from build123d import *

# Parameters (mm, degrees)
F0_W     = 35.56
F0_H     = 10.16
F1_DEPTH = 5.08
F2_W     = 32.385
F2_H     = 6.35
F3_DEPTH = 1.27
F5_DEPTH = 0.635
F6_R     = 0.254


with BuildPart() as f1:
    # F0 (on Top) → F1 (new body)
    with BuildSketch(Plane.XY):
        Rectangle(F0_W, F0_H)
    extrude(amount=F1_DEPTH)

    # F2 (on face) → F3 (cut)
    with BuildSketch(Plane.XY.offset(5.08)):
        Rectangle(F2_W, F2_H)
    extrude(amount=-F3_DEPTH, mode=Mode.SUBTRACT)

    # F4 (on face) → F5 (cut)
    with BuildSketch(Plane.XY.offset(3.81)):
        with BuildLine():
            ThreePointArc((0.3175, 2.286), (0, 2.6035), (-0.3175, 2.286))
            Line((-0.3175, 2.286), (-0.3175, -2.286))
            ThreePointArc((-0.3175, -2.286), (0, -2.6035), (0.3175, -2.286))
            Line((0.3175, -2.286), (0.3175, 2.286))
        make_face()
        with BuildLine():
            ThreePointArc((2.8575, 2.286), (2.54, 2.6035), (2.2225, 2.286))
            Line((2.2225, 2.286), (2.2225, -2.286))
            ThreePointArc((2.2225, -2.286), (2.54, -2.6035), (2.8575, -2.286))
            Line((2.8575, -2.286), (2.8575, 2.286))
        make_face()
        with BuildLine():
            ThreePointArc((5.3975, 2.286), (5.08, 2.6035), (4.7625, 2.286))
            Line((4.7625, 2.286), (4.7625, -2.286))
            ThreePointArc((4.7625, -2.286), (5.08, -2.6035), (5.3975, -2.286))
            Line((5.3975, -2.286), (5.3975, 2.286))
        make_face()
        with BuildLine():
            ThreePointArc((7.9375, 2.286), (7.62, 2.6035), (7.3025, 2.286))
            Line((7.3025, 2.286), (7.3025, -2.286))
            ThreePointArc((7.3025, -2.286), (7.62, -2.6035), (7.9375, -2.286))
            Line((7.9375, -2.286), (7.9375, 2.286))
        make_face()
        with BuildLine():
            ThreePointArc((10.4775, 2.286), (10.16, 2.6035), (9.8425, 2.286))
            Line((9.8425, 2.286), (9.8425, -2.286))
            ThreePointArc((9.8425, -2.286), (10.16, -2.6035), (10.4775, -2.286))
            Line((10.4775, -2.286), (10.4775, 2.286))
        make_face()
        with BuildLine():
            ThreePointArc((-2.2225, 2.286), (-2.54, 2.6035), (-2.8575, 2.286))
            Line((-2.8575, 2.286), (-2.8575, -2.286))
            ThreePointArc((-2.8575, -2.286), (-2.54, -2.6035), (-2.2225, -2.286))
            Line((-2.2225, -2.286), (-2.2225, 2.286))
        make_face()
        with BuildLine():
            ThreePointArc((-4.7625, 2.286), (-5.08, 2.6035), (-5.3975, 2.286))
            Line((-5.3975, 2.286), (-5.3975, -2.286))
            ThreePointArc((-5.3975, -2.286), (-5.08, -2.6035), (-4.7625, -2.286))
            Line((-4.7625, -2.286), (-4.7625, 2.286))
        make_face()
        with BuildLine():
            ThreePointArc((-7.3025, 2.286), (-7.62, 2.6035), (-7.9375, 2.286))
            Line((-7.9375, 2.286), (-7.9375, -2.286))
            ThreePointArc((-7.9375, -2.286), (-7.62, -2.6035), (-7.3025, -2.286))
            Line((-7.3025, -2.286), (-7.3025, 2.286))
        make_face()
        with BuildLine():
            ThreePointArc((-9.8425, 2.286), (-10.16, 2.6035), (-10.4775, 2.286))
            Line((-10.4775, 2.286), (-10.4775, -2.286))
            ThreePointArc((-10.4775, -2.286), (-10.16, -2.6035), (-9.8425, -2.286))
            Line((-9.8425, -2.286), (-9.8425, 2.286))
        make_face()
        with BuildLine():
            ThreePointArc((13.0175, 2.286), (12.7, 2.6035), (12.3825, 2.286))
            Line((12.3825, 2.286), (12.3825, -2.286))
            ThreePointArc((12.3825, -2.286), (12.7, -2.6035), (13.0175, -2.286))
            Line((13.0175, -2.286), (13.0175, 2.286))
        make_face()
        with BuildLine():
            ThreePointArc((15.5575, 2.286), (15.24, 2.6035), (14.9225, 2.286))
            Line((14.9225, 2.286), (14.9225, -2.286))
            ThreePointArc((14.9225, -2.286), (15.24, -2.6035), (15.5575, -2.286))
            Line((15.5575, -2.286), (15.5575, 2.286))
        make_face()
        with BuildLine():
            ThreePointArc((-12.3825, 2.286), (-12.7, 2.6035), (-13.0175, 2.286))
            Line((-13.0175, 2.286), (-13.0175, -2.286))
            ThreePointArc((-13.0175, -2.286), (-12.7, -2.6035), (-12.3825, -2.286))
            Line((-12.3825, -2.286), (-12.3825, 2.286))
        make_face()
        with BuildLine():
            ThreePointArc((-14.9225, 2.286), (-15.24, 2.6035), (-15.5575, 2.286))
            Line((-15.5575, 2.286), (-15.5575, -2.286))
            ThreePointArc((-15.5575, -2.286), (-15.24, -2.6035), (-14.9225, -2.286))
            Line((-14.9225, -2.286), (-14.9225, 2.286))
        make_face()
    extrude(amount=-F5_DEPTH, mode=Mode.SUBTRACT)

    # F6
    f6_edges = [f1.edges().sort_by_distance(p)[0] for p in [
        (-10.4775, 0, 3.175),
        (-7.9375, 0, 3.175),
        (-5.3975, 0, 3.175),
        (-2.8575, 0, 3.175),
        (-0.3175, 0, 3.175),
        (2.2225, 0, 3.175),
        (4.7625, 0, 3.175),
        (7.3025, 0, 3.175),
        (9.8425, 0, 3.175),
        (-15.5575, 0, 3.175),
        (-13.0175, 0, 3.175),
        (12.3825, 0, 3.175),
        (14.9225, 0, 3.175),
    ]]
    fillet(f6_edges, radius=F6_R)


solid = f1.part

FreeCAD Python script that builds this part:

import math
import FreeCAD as App
import Part
import Sketcher

V = App.Vector
Q = App.Units.Quantity


def edges_at(feature, points):
    """Names of the edges that pass closest to the given points."""
    edges = feature.Shape.Edges
    near = lambda p: min(range(len(edges)), key=lambda i: edges[i].distToShape(Part.Vertex(*p))[0])
    return sorted({f"Edge{near(p) + 1}" for p in points})


def add_polygon(sketch, points):
    """Adds a closed chain of lines whose ends are joined by coincident constraints."""
    first, n = sketch.GeometryCount, len(points)
    for a, b in zip(points, points[1:] + points[:1]):
        sketch.addGeometry(Part.LineSegment(App.Vector(*a, 0), App.Vector(*b, 0)), False)
    for i in range(n):
        sketch.addConstraint(Sketcher.Constraint("Coincident", first + i, 2, first + (i + 1) % n, 1))

doc = App.newDocument("Part")
body = doc.addObject("PartDesign::Body", "Body")

# Sketch on XY plane
sketch1 = body.newObject("Sketcher::SketchObject", "Sketch")
sketch1.AttachmentSupport = (doc.getObject("XY_Plane"), [""])
sketch1.MapMode = "FlatFace"
add_polygon(sketch1, [(-18, 5), (-18, -5), (18, -5), (18, 5)])  # lines 0-3
sketch1.addConstraint([
    Sketcher.Constraint("Vertical", 0),
    Sketcher.Constraint("Horizontal", 1),
    Sketcher.Constraint("Vertical", 2),
    Sketcher.Constraint("Horizontal", 3),
    Sketcher.Constraint("Symmetric", 0, 2, 2, 2, -1, 1),
    Sketcher.Constraint("DistanceX", 1, 1, 1, 2, Q("1.4 in")),
    Sketcher.Constraint("DistanceY", 0, 2, 0, 1, Q("0.4 in")),
])
pad1 = body.newObject("PartDesign::Pad", "Pad")
pad1.Profile = sketch1
pad1.Length = Q("0.2 in")

# Sketch on XY plane
sketch2 = body.newObject("Sketcher::SketchObject", "Sketch001")
sketch2.AttachmentSupport = (doc.getObject("XY_Plane"), [""])
sketch2.MapMode = "FlatFace"
sketch2.AttachmentOffset = App.Placement(V(0, 0, 0.2 * 25.4), App.Rotation())
add_polygon(sketch2, [(-16, 3), (-16, -3), (16, -3), (16, 3)])  # lines 0-3
sketch2.addConstraint([
    Sketcher.Constraint("Vertical", 0),
    Sketcher.Constraint("Horizontal", 1),
    Sketcher.Constraint("Vertical", 2),
    Sketcher.Constraint("Horizontal", 3),
    Sketcher.Constraint("Symmetric", 0, 2, 2, 2, -1, 1),
    Sketcher.Constraint("DistanceY", 0, 2, 0, 1, Q("0.25 in")),
    Sketcher.Constraint("DistanceX", 1, 1, 1, 2, Q("1.275 in")),
])
pocket1 = body.newObject("PartDesign::Pocket", "Pocket")
pocket1.Profile = sketch2
pocket1.Length = Q("0.05 in")

# Sketch on XY plane
sketch3 = body.newObject("Sketcher::SketchObject", "Sketch002")
sketch3.AttachmentSupport = (doc.getObject("XY_Plane"), [""])
sketch3.MapMode = "FlatFace"
sketch3.AttachmentOffset = App.Placement(V(0, 0, 0.15 * 25.4), App.Rotation())
sketch3.addGeometry([
    Part.ArcOfCircle(Part.Circle(V(0, 2.29, 0), V(0, 0, 1), 0.32), math.radians(0), math.radians(180)),  # 0
    Part.LineSegment(V(-0.32, 2.29, 0), V(-0.32, -2.29, 0)),  # 1
    Part.ArcOfCircle(Part.Circle(V(0, -2.29, 0), V(0, 0, 1), 0.32), math.radians(180), math.radians(360)),  # 2
    Part.LineSegment(V(0.32, -2.29, 0), V(0.32, 2.29, 0)),  # 3
    Part.ArcOfCircle(Part.Circle(V(2.54, 2.29, 0), V(0, 0, 1), 0.32), math.radians(0), math.radians(180)),  # 4
    Part.LineSegment(V(2.22, 2.29, 0), V(2.22, -2.29, 0)),  # 5
    Part.ArcOfCircle(Part.Circle(V(2.54, -2.29, 0), V(0, 0, 1), 0.32), math.radians(180), math.radians(360)),  # 6
    Part.LineSegment(V(2.86, -2.29, 0), V(2.86, 2.29, 0)),  # 7
    Part.ArcOfCircle(Part.Circle(V(5.08, 2.29, 0), V(0, 0, 1), 0.32), math.radians(0), math.radians(180)),  # 8
    Part.LineSegment(V(4.76, 2.29, 0), V(4.76, -2.29, 0)),  # 9
    Part.ArcOfCircle(Part.Circle(V(5.08, -2.29, 0), V(0, 0, 1), 0.32), math.radians(180), math.radians(360)),  # 10
    Part.LineSegment(V(5.4, -2.29, 0), V(5.4, 2.29, 0)),  # 11
    Part.ArcOfCircle(Part.Circle(V(7.62, 2.29, 0), V(0, 0, 1), 0.32), math.radians(0), math.radians(180)),  # 12
    Part.LineSegment(V(7.3, 2.29, 0), V(7.3, -2.29, 0)),  # 13
    Part.ArcOfCircle(Part.Circle(V(7.62, -2.29, 0), V(0, 0, 1), 0.32), math.radians(180), math.radians(360)),  # 14
    Part.LineSegment(V(7.94, -2.29, 0), V(7.94, 2.29, 0)),  # 15
    Part.ArcOfCircle(Part.Circle(V(10.16, 2.29, 0), V(0, 0, 1), 0.32), math.radians(0), math.radians(180)),  # 16
    Part.LineSegment(V(9.84, 2.29, 0), V(9.84, -2.29, 0)),  # 17
    Part.ArcOfCircle(Part.Circle(V(10.16, -2.29, 0), V(0, 0, 1), 0.32), math.radians(180), math.radians(360)),  # 18
    Part.LineSegment(V(10.48, -2.29, 0), V(10.48, 2.29, 0)),  # 19
    Part.ArcOfCircle(Part.Circle(V(-2.54, 2.29, 0), V(0, 0, 1), 0.32), math.radians(0), math.radians(180)),  # 20
    Part.LineSegment(V(-2.86, 2.29, 0), V(-2.86, -2.29, 0)),  # 21
    Part.ArcOfCircle(Part.Circle(V(-2.54, -2.29, 0), V(0, 0, 1), 0.32), math.radians(180), math.radians(360)),  # 22
    Part.LineSegment(V(-2.22, -2.29, 0), V(-2.22, 2.29, 0)),  # 23
    Part.ArcOfCircle(Part.Circle(V(-5.08, 2.29, 0), V(0, 0, 1), 0.32), math.radians(0), math.radians(180)),  # 24
    Part.LineSegment(V(-5.4, 2.29, 0), V(-5.4, -2.29, 0)),  # 25
    Part.ArcOfCircle(Part.Circle(V(-5.08, -2.29, 0), V(0, 0, 1), 0.32), math.radians(180), math.radians(360)),  # 26
    Part.LineSegment(V(-4.76, -2.29, 0), V(-4.76, 2.29, 0)),  # 27
    Part.ArcOfCircle(Part.Circle(V(-7.62, 2.29, 0), V(0, 0, 1), 0.32), math.radians(0), math.radians(180)),  # 28
    Part.LineSegment(V(-7.94, 2.29, 0), V(-7.94, -2.29, 0)),  # 29
    Part.ArcOfCircle(Part.Circle(V(-7.62, -2.29, 0), V(0, 0, 1), 0.32), math.radians(180), math.radians(360)),  # 30
    Part.LineSegment(V(-7.3, -2.29, 0), V(-7.3, 2.29, 0)),  # 31
    Part.ArcOfCircle(Part.Circle(V(-10.16, 2.29, 0), V(0, 0, 1), 0.32), math.radians(0), math.radians(180)),  # 32
    Part.LineSegment(V(-10.48, 2.29, 0), V(-10.48, -2.29, 0)),  # 33
    Part.ArcOfCircle(Part.Circle(V(-10.16, -2.29, 0), V(0, 0, 1), 0.32), math.radians(180), math.radians(360)),  # 34
    Part.LineSegment(V(-9.84, -2.29, 0), V(-9.84, 2.29, 0)),  # 35
    Part.ArcOfCircle(Part.Circle(V(12.7, 2.29, 0), V(0, 0, 1), 0.32), math.radians(0), math.radians(180)),  # 36
    Part.LineSegment(V(12.38, 2.29, 0), V(12.38, -2.29, 0)),  # 37
    Part.ArcOfCircle(Part.Circle(V(12.7, -2.29, 0), V(0, 0, 1), 0.32), math.radians(180), math.radians(360)),  # 38
    Part.LineSegment(V(13.02, -2.29, 0), V(13.02, 2.29, 0)),  # 39
    Part.ArcOfCircle(Part.Circle(V(15.24, 2.29, 0), V(0, 0, 1), 0.32), math.radians(0), math.radians(180)),  # 40
    Part.LineSegment(V(14.92, 2.29, 0), V(14.92, -2.29, 0)),  # 41
    Part.ArcOfCircle(Part.Circle(V(15.24, -2.29, 0), V(0, 0, 1), 0.32), math.radians(180), math.radians(360)),  # 42
    Part.LineSegment(V(15.56, -2.29, 0), V(15.56, 2.29, 0)),  # 43
    Part.ArcOfCircle(Part.Circle(V(-12.7, 2.29, 0), V(0, 0, 1), 0.32), math.radians(0), math.radians(180)),  # 44
    Part.LineSegment(V(-13.02, 2.29, 0), V(-13.02, -2.29, 0)),  # 45
    Part.ArcOfCircle(Part.Circle(V(-12.7, -2.29, 0), V(0, 0, 1), 0.32), math.radians(180), math.radians(360)),  # 46
    Part.LineSegment(V(-12.38, -2.29, 0), V(-12.38, 2.29, 0)),  # 47
    Part.ArcOfCircle(Part.Circle(V(-15.24, 2.29, 0), V(0, 0, 1), 0.32), math.radians(0), math.radians(180)),  # 48
    Part.LineSegment(V(-15.56, 2.29, 0), V(-15.56, -2.29, 0)),  # 49
    Part.ArcOfCircle(Part.Circle(V(-15.24, -2.29, 0), V(0, 0, 1), 0.32), math.radians(180), math.radians(360)),  # 50
    Part.LineSegment(V(-14.92, -2.29, 0), V(-14.92, 2.29, 0)),  # 51
], False)
sketch3.addConstraint([
    Sketcher.Constraint("Tangent", 0, 2, 1, 1),
    Sketcher.Constraint("Tangent", 1, 2, 2, 1),
    Sketcher.Constraint("Tangent", 2, 2, 3, 1),
    Sketcher.Constraint("Tangent", 3, 2, 0, 1),
    Sketcher.Constraint("Tangent", 4, 2, 5, 1),
    Sketcher.Constraint("Tangent", 5, 2, 6, 1),
    Sketcher.Constraint("Tangent", 6, 2, 7, 1),
    Sketcher.Constraint("Tangent", 7, 2, 4, 1),
    Sketcher.Constraint("Tangent", 8, 2, 9, 1),
    Sketcher.Constraint("Tangent", 9, 2, 10, 1),
    Sketcher.Constraint("Tangent", 10, 2, 11, 1),
    Sketcher.Constraint("Tangent", 11, 2, 8, 1),
    Sketcher.Constraint("Tangent", 12, 2, 13, 1),
    Sketcher.Constraint("Tangent", 13, 2, 14, 1),
    Sketcher.Constraint("Tangent", 14, 2, 15, 1),
    Sketcher.Constraint("Tangent", 15, 2, 12, 1),
    Sketcher.Constraint("Tangent", 16, 2, 17, 1),
    Sketcher.Constraint("Tangent", 17, 2, 18, 1),
    Sketcher.Constraint("Tangent", 18, 2, 19, 1),
    Sketcher.Constraint("Tangent", 19, 2, 16, 1),
    Sketcher.Constraint("Tangent", 20, 2, 21, 1),
    Sketcher.Constraint("Tangent", 21, 2, 22, 1),
    Sketcher.Constraint("Tangent", 22, 2, 23, 1),
    Sketcher.Constraint("Tangent", 23, 2, 20, 1),
    Sketcher.Constraint("Tangent", 24, 2, 25, 1),
    Sketcher.Constraint("Tangent", 25, 2, 26, 1),
    Sketcher.Constraint("Tangent", 26, 2, 27, 1),
    Sketcher.Constraint("Tangent", 27, 2, 24, 1),
    Sketcher.Constraint("Tangent", 28, 2, 29, 1),
    Sketcher.Constraint("Tangent", 29, 2, 30, 1),
    Sketcher.Constraint("Tangent", 30, 2, 31, 1),
    Sketcher.Constraint("Tangent", 31, 2, 28, 1),
    Sketcher.Constraint("Tangent", 32, 2, 33, 1),
    Sketcher.Constraint("Tangent", 33, 2, 34, 1),
    Sketcher.Constraint("Tangent", 34, 2, 35, 1),
    Sketcher.Constraint("Tangent", 35, 2, 32, 1),
    Sketcher.Constraint("Tangent", 36, 2, 37, 1),
    Sketcher.Constraint("Tangent", 37, 2, 38, 1),
    Sketcher.Constraint("Tangent", 38, 2, 39, 1),
    Sketcher.Constraint("Tangent", 39, 2, 36, 1),
    Sketcher.Constraint("Tangent", 40, 2, 41, 1),
    Sketcher.Constraint("Tangent", 41, 2, 42, 1),
    Sketcher.Constraint("Tangent", 42, 2, 43, 1),
    Sketcher.Constraint("Tangent", 43, 2, 40, 1),
    Sketcher.Constraint("Tangent", 44, 2, 45, 1),
    Sketcher.Constraint("Tangent", 45, 2, 46, 1),
    Sketcher.Constraint("Tangent", 46, 2, 47, 1),
    Sketcher.Constraint("Tangent", 47, 2, 44, 1),
    Sketcher.Constraint("Tangent", 48, 2, 49, 1),
    Sketcher.Constraint("Tangent", 49, 2, 50, 1),
    Sketcher.Constraint("Tangent", 50, 2, 51, 1),
    Sketcher.Constraint("Tangent", 51, 2, 48, 1),
    Sketcher.Constraint("Vertical", 1),
    Sketcher.Constraint("Vertical", 3),
    Sketcher.Constraint("Vertical", 5),
    Sketcher.Constraint("Vertical", 7),
    Sketcher.Constraint("Vertical", 9),
    Sketcher.Constraint("Vertical", 11),
    Sketcher.Constraint("Vertical", 13),
    Sketcher.Constraint("Vertical", 15),
    Sketcher.Constraint("Vertical", 17),
    Sketcher.Constraint("Vertical", 19),
    Sketcher.Constraint("Vertical", 21),
    Sketcher.Constraint("Vertical", 23),
    Sketcher.Constraint("Vertical", 25),
    Sketcher.Constraint("Vertical", 27),
    Sketcher.Constraint("Vertical", 29),
    Sketcher.Constraint("Vertical", 31),
    Sketcher.Constraint("Vertical", 33),
    Sketcher.Constraint("Vertical", 35),
    Sketcher.Constraint("Vertical", 37),
    Sketcher.Constraint("Vertical", 39),
    Sketcher.Constraint("Vertical", 41),
    Sketcher.Constraint("Vertical", 43),
    Sketcher.Constraint("Vertical", 45),
    Sketcher.Constraint("Vertical", 47),
    Sketcher.Constraint("Vertical", 49),
    Sketcher.Constraint("Vertical", 51),
    Sketcher.Constraint("Equal", 2, 4),
    Sketcher.Constraint("Equal", 6, 8),
    Sketcher.Constraint("Equal", 10, 12),
    Sketcher.Constraint("Equal", 14, 16),
    Sketcher.Constraint("Equal", 18, 20),
    Sketcher.Constraint("Equal", 22, 24),
    Sketcher.Constraint("Equal", 26, 28),
    Sketcher.Constraint("Equal", 30, 32),
    Sketcher.Constraint("Equal", 34, 36),
    Sketcher.Constraint("Equal", 38, 40),
    Sketcher.Constraint("Equal", 42, 44),
    Sketcher.Constraint("Equal", 46, 48),
    Sketcher.Constraint("Symmetric", 0, 3, 2, 3, -1, 1),
    Sketcher.Constraint("Symmetric", 6, 3, 20, 3, -1, 1),
    Sketcher.Constraint("Symmetric", 10, 3, 24, 3, -1, 1),
    Sketcher.Constraint("Symmetric", 14, 3, 28, 3, -1, 1),
    Sketcher.Constraint("Symmetric", 18, 3, 32, 3, -1, 1),
    Sketcher.Constraint("Symmetric", 38, 3, 44, 3, -1, 1),
    Sketcher.Constraint("Symmetric", 42, 3, 48, 3, -1, 1),
    Sketcher.Constraint("Horizontal", 0, 3, 4, 3),
    Sketcher.Constraint("Horizontal", 2, 3, 6, 3),
    Sketcher.Constraint("Horizontal", 4, 3, 8, 3),
    Sketcher.Constraint("Horizontal", 6, 3, 10, 3),
    Sketcher.Constraint("Horizontal", 8, 3, 12, 3),
    Sketcher.Constraint("Horizontal", 10, 3, 14, 3),
    Sketcher.Constraint("Horizontal", 12, 3, 16, 3),
    Sketcher.Constraint("Horizontal", 14, 3, 18, 3),
    Sketcher.Constraint("Horizontal", 18, 3, 22, 3),
    Sketcher.Constraint("Horizontal", 22, 3, 26, 3),
    Sketcher.Constraint("Horizontal", 26, 3, 30, 3),
    Sketcher.Constraint("Horizontal", 30, 3, 34, 3),
    Sketcher.Constraint("Horizontal", 32, 3, 36, 3),
    Sketcher.Constraint("Horizontal", 34, 3, 38, 3),
    Sketcher.Constraint("Horizontal", 36, 3, 40, 3),
    Sketcher.Constraint("Horizontal", 38, 3, 42, 3),
    Sketcher.Constraint("Horizontal", 42, 3, 46, 3),
    Sketcher.Constraint("Horizontal", 46, 3, 50, 3),
    Sketcher.Constraint("DistanceY", 1, 2, 1, 1, Q("0.18 in")),
    Sketcher.Constraint("DistanceX", -1, 1, 4, 3, Q("0.1 in")),
    Sketcher.Constraint("DistanceX", -1, 1, 8, 3, Q("0.2 in")),
    Sketcher.Constraint("DistanceX", -1, 1, 12, 3, Q("0.3 in")),
    Sketcher.Constraint("DistanceX", -1, 1, 16, 3, Q("0.4 in")),
    Sketcher.Constraint("DistanceX", -1, 1, 36, 3, Q("0.5 in")),
    Sketcher.Constraint("DistanceX", -1, 1, 40, 3, Q("0.6 in")),
    Sketcher.Constraint("Radius", 0, Q("0.0125 in")),
])
pocket2 = body.newObject("PartDesign::Pocket", "Pocket001")
pocket2.Profile = sketch3
pocket2.Length = Q("0.025 in")
doc.recompute()

fillet = body.newObject("PartDesign::Fillet", "Fillet")
fillet.Base = (pocket2, edges_at(pocket2, [
    (-10.477, 0, 3.175),
    (-7.938, 0, 3.175),
    (-5.397, 0, 3.175),
    (-2.857, 0, 3.175),
    (-0.318, 0, 3.175),
    (2.223, 0, 3.175),
    (4.763, 0, 3.175),
    (7.303, 0, 3.175),
    (9.842, 0, 3.175),
    (-15.557, 0, 3.175),
    (-13.018, 0, 3.175),
    (12.383, 0, 3.175),
    (14.922, 0, 3.175),
]))
fillet.Radius = Q("0.01 in")

doc.recompute()
